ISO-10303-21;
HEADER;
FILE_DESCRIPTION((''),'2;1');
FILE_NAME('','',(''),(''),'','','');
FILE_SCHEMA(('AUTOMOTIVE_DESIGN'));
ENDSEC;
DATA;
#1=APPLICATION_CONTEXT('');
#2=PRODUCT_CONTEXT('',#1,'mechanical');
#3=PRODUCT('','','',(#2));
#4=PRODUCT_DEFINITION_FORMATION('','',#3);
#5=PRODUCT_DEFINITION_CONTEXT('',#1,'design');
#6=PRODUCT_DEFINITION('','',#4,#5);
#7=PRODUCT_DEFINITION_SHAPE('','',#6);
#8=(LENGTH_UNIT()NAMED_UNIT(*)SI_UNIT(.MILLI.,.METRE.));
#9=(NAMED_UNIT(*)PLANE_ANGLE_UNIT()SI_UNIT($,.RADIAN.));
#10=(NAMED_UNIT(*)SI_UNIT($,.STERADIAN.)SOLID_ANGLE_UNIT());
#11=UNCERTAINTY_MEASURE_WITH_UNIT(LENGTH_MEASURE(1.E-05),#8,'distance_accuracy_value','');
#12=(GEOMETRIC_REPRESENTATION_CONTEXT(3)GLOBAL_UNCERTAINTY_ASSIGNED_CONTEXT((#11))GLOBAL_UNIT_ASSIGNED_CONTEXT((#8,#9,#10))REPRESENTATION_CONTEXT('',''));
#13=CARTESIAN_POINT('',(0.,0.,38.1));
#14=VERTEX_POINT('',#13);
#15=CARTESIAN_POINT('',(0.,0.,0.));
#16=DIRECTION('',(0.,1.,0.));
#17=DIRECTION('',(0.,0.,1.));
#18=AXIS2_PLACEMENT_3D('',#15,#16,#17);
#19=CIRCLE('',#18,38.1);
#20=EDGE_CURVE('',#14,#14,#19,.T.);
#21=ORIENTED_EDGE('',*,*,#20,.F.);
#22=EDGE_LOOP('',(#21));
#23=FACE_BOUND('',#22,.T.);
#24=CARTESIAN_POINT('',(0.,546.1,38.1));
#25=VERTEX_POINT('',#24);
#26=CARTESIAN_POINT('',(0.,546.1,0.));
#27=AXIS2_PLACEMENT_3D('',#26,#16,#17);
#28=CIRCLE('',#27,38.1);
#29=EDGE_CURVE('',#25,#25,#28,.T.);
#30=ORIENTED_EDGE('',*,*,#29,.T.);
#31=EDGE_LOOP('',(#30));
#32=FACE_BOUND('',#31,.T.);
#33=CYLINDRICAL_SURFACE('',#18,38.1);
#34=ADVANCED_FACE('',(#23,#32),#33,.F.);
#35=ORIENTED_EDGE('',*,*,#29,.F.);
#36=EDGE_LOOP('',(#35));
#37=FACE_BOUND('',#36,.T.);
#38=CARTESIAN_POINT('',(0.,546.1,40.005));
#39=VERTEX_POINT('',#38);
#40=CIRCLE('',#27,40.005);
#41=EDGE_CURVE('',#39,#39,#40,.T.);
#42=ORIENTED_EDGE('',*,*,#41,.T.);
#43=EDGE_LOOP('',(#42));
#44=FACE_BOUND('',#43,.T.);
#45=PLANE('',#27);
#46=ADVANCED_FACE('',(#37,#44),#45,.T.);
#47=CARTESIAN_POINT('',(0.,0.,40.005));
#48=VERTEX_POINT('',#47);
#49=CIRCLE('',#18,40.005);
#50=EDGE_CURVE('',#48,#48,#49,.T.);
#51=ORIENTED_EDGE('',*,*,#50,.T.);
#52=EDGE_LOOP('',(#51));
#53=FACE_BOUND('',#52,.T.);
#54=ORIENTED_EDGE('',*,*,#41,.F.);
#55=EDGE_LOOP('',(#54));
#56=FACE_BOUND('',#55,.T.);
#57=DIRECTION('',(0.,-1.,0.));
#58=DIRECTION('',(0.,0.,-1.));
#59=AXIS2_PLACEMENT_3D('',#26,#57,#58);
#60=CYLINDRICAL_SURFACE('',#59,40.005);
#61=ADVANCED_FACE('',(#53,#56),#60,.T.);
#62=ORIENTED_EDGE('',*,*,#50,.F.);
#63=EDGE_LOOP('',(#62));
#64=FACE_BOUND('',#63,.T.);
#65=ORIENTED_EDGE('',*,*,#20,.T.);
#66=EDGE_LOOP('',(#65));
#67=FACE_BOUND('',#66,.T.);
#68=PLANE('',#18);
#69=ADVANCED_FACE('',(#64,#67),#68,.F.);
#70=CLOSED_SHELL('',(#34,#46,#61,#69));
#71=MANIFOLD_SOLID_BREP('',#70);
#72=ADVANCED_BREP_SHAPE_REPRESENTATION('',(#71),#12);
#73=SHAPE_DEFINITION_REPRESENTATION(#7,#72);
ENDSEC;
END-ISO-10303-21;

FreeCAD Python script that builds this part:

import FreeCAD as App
import Part
import Sketcher

V = App.Vector
Q = App.Units.Quantity

doc = App.newDocument("Part")
body = doc.addObject("PartDesign::Body", "Body")

# Sketch on XZ plane
sketch1 = body.newObject("Sketcher::SketchObject", "Sketch")
sketch1.AttachmentSupport = (doc.getObject("XZ_Plane"), [""])
sketch1.MapMode = "FlatFace"
sketch1.addGeometry(Part.Circle(V(0, 0, 0), V(0, 0, 1), 40), False)
sketch1.addConstraint([
    Sketcher.Constraint("Coincident", 0, 3, -1, 1),
    Sketcher.Constraint("Diameter", 0, Q("3.15 in")),
])
pad1 = body.newObject("PartDesign::Pad", "Pad")
pad1.Profile = sketch1
pad1.Length = Q("21.5 in")
pad1.Reversed = True

# Sketch on XZ plane
sketch2 = body.newObject("Sketcher::SketchObject", "Sketch001")
sketch2.AttachmentSupport = (doc.getObject("XZ_Plane"), [""])
sketch2.MapMode = "FlatFace"
sketch2.AttachmentOffset = App.Placement(V(0, 0, -21.5 * 25.4), App.Rotation())
sketch2.addGeometry(Part.Circle(V(0, 0, 0), V(0, 0, 1), 38), False)
sketch2.addConstraint([
    Sketcher.Constraint("Coincident", 0, 3, -1, 1),
    Sketcher.Constraint("Diameter", 0, Q("3 in")),
])
pocket1 = body.newObject("PartDesign::Pocket", "Pocket")
pocket1.Profile = sketch2
pocket1.Length = Q("21.5 in")
pocket1.Reversed = True

doc.recompute()
